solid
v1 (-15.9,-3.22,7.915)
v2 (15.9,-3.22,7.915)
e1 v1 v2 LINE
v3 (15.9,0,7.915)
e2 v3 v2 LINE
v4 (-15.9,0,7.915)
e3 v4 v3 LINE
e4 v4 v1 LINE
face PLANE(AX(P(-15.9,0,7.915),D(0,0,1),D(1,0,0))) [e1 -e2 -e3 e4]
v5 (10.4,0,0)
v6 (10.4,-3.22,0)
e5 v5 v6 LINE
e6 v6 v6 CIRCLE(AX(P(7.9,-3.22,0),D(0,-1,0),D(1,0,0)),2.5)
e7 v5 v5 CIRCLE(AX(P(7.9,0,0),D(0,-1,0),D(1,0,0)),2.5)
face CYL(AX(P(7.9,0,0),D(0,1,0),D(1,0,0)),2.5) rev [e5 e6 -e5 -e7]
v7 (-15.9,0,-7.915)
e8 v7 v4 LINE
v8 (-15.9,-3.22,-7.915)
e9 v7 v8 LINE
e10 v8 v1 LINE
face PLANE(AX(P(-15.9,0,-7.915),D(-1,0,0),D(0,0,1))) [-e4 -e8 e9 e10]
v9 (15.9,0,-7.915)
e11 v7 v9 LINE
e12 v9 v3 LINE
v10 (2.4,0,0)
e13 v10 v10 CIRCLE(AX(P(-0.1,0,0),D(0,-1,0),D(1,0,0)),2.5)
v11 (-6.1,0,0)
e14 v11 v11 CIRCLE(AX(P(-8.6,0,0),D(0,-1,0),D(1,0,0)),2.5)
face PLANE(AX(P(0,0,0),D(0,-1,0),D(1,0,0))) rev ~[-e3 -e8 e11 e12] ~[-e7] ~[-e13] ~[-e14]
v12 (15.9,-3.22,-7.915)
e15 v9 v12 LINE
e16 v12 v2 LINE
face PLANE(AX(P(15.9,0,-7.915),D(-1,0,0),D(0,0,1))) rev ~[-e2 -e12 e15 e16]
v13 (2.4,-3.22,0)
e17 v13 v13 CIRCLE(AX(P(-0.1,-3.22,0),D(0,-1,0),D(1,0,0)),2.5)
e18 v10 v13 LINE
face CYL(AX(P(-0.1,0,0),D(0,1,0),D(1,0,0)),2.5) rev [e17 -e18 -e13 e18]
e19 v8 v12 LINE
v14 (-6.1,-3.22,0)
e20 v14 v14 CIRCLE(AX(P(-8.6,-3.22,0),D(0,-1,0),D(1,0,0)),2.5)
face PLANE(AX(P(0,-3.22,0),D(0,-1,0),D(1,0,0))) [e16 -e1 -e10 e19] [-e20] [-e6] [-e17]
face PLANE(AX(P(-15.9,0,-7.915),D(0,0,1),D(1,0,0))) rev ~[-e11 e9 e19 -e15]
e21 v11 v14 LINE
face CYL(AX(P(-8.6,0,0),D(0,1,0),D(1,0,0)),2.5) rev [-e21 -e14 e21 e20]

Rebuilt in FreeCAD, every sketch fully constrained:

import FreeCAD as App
import Part
import Sketcher
from FreeCAD import Vector
Q = App.Units.Quantity

doc = App.newDocument("Part")
body = doc.addObject("PartDesign::Body", "Body")

sketch1 = body.newObject("Sketcher::SketchObject", "Sketch")
sketch1.AttachmentSupport = (doc.getObject("XZ_Plane"), [""])
sketch1.MapMode = "FlatFace"
sketch1.addGeometry([
    Part.LineSegment(Vector(-15.9, 7.9, 0), Vector(-15.9, -7.9, 0)),
    Part.LineSegment(Vector(-15.9, -7.9, 0), Vector(15.9, -7.9, 0)),
    Part.LineSegment(Vector(15.9, -7.9, 0), Vector(15.9, 7.9, 0)),
    Part.LineSegment(Vector(15.9, 7.9, 0), Vector(-15.9, 7.9, 0)),
    Part.Circle(Vector(-8.6, 0, 0), Vector(0, 0, 1), 2.5),
    Part.Circle(Vector(-0.1, 0, 0), Vector(0, 0, 1), 2.5),
    Part.Circle(Vector(7.9, 0, 0), Vector(0, 0, 1), 2.5),
], False)
sketch1.addConstraint([
    Sketcher.Constraint("Coincident", 0, 2, 1, 1),
    Sketcher.Constraint("Coincident", 1, 2, 2, 1),
    Sketcher.Constraint("Coincident", 2, 2, 3, 1),
    Sketcher.Constraint("Coincident", 3, 2, 0, 1),
    Sketcher.Constraint("Vertical", 0),
    Sketcher.Constraint("Horizontal", 1),
    Sketcher.Constraint("Vertical", 2),
    Sketcher.Constraint("Horizontal", 3),
    Sketcher.Constraint("Equal", 4, 5),
    Sketcher.Constraint("Equal", 5, 6),
    Sketcher.Constraint("Symmetric", 0, 2, 2, 2, -1, 1),
    Sketcher.Constraint("PointOnObject", 4, 3, -1),
    Sketcher.Constraint("PointOnObject", 5, 3, -1),
    Sketcher.Constraint("PointOnObject", 6, 3, -1),
    Sketcher.Constraint("Diameter", 4, Q("5 mm")),
    Sketcher.Constraint("DistanceX", 1, 1, 1, 2, Q("31.8 mm")),
    Sketcher.Constraint("DistanceX", 5, 3, 6, 3, Q("8 mm")),
    Sketcher.Constraint("DistanceX", 6, 3, 1, 2, Q("8 mm")),
    Sketcher.Constraint("DistanceY", 0, 2, 0, 1, Q("15.83 mm")),
    Sketcher.Constraint("DistanceX", 4, 3, -1, 1, Q("8.6 mm")),
])
pad1 = body.newObject("PartDesign::Pad", "Pad")
pad1.Profile = sketch1
pad1.Length = 3.22

doc.recompute()
